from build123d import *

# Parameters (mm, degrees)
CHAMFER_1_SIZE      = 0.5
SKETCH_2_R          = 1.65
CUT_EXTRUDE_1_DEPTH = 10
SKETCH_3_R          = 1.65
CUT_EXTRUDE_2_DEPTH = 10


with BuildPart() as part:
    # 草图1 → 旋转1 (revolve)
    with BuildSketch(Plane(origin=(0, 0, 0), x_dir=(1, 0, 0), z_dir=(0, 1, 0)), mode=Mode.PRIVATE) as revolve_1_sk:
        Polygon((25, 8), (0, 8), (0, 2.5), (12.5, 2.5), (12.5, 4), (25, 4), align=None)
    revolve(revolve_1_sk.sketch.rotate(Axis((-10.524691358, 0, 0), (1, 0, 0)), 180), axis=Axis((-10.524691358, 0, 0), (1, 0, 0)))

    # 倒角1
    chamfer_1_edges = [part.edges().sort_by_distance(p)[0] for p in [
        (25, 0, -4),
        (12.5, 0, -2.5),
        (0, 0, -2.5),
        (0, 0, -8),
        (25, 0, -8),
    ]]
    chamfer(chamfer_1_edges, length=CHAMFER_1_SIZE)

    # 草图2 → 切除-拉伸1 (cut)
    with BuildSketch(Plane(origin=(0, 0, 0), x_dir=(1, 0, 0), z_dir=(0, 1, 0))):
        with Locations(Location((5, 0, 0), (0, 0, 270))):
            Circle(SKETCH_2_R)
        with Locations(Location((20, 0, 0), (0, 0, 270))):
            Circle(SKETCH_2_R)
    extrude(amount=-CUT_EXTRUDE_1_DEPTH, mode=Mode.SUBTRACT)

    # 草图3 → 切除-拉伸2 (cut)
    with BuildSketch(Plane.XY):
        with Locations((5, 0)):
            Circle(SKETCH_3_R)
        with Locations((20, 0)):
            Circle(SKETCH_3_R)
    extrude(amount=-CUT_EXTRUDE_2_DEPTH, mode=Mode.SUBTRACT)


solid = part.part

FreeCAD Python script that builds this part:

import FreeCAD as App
import Part
import Sketcher
from FreeCAD import Vector


def edges_at(feature, points):
    """Names of the edges that pass closest to the given points."""
    edges = feature.Shape.Edges
    near = lambda p: min(range(len(edges)), key=lambda i: edges[i].distToShape(Part.Vertex(*p))[0])
    return sorted({f"Edge{near(p) + 1}" for p in points})

doc = App.newDocument("Part")
body = doc.addObject("PartDesign::Body", "Body")

# Sketch on XZ plane
sketch1 = body.newObject("Sketcher::SketchObject", "Sketch")
sketch1.AttachmentSupport = (doc.getObject("XZ_Plane"), [""])
sketch1.MapMode = "FlatFace"
sketch1.addGeometry([
    Part.LineSegment(Vector(25, -8, 0), Vector(0, -8, 0)),  # 0
    Part.LineSegment(Vector(0, -8, 0), Vector(0, -2.5, 0)),  # 1
    Part.LineSegment(Vector(0, -2.5, 0), Vector(12.5, -2.5, 0)),  # 2
    Part.LineSegment(Vector(12.5, -2.5, 0), Vector(12.5, -4, 0)),  # 3
    Part.LineSegment(Vector(12.5, -4, 0), Vector(25, -4, 0)),  # 4
    Part.LineSegment(Vector(25, -4, 0), Vector(25, -8, 0)),  # 5
], False)
sketch1.addConstraint([
    Sketcher.Constraint("Coincident", 0, 2, 1, 1),
    Sketcher.Constraint("Coincident", 1, 2, 2, 1),
    Sketcher.Constraint("Coincident", 2, 2, 3, 1),
    Sketcher.Constraint("Coincident", 3, 2, 4, 1),
    Sketcher.Constraint("Coincident", 4, 2, 5, 1),
    Sketcher.Constraint("Coincident", 5, 2, 0, 1),
    Sketcher.Constraint("Horizontal", 0),
    Sketcher.Constraint("Vertical", 1),
    Sketcher.Constraint("Horizontal", 2),
    Sketcher.Constraint("Vertical", 3),
    Sketcher.Constraint("Horizontal", 4),
    Sketcher.Constraint("Vertical", 5),
    Sketcher.Constraint("PointOnObject", 0, 2, -2),
    Sketcher.Constraint("Equal", 2, 4),
    Sketcher.Constraint("DistanceX", 0, 2, 0, 1, 25.0),
    Sketcher.Constraint("DistanceY", 5, 2, 5, 1, 4.0),
    Sketcher.Constraint("DistanceY", 1, 1, 1, 2, 5.5),
    Sketcher.Constraint("DistanceY", 0, 2, -1, 1, 8.0),
])
revolution = body.newObject("PartDesign::Revolution", "Revolution")
revolution.Profile = sketch1
revolution.ReferenceAxis = (sketch1, ["H_Axis"])
revolution.Angle = 360
doc.recompute()

chamfer = body.newObject("PartDesign::Chamfer", "Chamfer")
chamfer.Base = (revolution, edges_at(revolution, [
    (25, 0, -4),
    (12.5, 0, -2.5),
    (0, 0, -2.5),
    (0, 0, -8),
    (25, 0, -8),
]))
chamfer.Size = 0.5

# Sketch on XZ plane
sketch2 = body.newObject("Sketcher::SketchObject", "Sketch001")
sketch2.AttachmentSupport = (doc.getObject("XZ_Plane"), [""])
sketch2.MapMode = "FlatFace"
sketch2.addGeometry([
    Part.Circle(Vector(5, 0, 0), Vector(0, 0, 1), 1.6),
    Part.Circle(Vector(20, 0, 0), Vector(0, 0, 1), 1.6),
], False)
sketch2.addConstraint([
    Sketcher.Constraint("Equal", 0, 1),
    Sketcher.Constraint("PointOnObject", 0, 3, -1),
    Sketcher.Constraint("PointOnObject", 1, 3, -1),
    Sketcher.Constraint("Diameter", 0, 3.3),
    Sketcher.Constraint("DistanceX", -1, 1, 0, 3, 5.0),
    Sketcher.Constraint("DistanceX", -1, 1, 1, 3, 20.0),
])
pocket1 = body.newObject("PartDesign::Pocket", "Pocket")
pocket1.Profile = sketch2
pocket1.Length = 10
pocket1.Reversed = True

# Sketch on XY plane
sketch3 = body.newObject("Sketcher::SketchObject", "Sketch002")
sketch3.AttachmentSupport = (doc.getObject("XY_Plane"), [""])
sketch3.MapMode = "FlatFace"
sketch3.addGeometry([
    Part.Circle(Vector(5, 0, 0), Vector(0, 0, 1), 1.6),
    Part.Circle(Vector(20, 0, 0), Vector(0, 0, 1), 1.6),
], False)
sketch3.addConstraint([
    Sketcher.Constraint("Equal", 0, 1),
    Sketcher.Constraint("PointOnObject", 0, 3, -1),
    Sketcher.Constraint("PointOnObject", 1, 3, -1),
    Sketcher.Constraint("Diameter", 0, 3.3),
    Sketcher.Constraint("DistanceX", -1, 1, 0, 3, 5.0),
    Sketcher.Constraint("DistanceX", -1, 1, 1, 3, 20.0),
])
pocket2 = body.newObject("PartDesign::Pocket", "Pocket001")
pocket2.Profile = sketch3
pocket2.Length = 10

doc.recompute()
